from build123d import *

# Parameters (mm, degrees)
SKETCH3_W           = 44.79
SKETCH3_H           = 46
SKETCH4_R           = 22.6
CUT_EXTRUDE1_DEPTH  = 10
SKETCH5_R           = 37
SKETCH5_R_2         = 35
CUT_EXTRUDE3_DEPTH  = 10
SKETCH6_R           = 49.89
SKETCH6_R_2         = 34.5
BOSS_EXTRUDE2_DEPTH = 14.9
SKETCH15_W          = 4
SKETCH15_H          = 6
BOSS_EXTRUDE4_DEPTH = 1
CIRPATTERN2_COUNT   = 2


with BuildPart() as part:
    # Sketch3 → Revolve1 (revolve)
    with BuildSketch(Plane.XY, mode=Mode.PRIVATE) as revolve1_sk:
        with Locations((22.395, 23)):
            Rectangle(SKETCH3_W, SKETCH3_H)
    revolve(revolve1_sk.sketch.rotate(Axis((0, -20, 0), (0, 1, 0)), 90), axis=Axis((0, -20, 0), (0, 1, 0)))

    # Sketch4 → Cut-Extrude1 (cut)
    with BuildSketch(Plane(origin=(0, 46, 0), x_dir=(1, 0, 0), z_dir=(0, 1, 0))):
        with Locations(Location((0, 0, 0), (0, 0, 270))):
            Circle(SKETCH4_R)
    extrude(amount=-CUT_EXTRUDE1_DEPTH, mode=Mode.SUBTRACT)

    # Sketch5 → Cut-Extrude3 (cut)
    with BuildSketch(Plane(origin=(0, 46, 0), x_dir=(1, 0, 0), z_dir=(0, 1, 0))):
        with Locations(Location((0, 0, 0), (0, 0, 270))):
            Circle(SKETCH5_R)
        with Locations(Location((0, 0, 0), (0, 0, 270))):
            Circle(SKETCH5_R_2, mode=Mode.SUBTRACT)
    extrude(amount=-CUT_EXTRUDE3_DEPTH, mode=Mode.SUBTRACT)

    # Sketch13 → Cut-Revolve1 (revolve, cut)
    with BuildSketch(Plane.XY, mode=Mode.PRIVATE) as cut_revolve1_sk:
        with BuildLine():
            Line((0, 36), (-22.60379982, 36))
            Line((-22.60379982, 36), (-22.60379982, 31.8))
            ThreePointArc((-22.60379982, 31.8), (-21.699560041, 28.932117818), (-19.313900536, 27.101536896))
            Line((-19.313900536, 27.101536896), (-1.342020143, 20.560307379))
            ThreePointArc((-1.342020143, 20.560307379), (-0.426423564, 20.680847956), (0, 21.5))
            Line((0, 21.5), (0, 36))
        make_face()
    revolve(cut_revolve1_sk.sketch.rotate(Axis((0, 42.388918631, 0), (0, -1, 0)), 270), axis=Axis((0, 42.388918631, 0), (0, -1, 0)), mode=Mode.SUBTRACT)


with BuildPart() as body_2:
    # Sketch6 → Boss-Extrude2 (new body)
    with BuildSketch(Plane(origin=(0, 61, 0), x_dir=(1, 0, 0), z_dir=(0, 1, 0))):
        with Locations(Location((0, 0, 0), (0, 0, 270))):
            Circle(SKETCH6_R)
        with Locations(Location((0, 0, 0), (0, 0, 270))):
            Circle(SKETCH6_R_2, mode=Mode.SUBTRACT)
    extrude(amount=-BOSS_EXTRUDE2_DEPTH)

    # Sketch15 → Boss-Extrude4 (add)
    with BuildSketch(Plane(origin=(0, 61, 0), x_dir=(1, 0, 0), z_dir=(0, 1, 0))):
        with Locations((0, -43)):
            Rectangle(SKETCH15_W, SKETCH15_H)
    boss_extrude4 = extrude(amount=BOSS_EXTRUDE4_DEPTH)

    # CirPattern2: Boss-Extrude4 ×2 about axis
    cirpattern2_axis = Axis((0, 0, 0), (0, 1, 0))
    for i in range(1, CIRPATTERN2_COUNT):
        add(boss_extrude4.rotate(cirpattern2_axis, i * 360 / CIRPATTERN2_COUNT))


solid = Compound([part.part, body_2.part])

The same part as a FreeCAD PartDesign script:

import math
import FreeCAD as App
import Part
import Sketcher
Q = App.Units.Quantity


def add_polygon(sketch, points):
    """Adds a closed chain of lines whose ends are joined by coincident constraints."""
    first, n = sketch.GeometryCount, len(points)
    for a, b in zip(points, points[1:] + points[:1]):
        sketch.addGeometry(Part.LineSegment(App.Vector(*a, 0), App.Vector(*b, 0)), False)
    for i in range(n):
        sketch.addConstraint(Sketcher.Constraint("Coincident", first + i, 2, first + (i + 1) % n, 1))

doc = App.newDocument("Part")
body = doc.addObject("PartDesign::Body", "Body")

sketch1 = body.newObject("Sketcher::SketchObject", "Sketch")
sketch1.AttachmentSupport = (doc.getObject("XY_Plane"), [""])
sketch1.MapMode = "FlatFace"
add_polygon(sketch1, [(0, 46), (0, 0), (44.79, 0), (44.79, 46)])
sketch1.addConstraint(Sketcher.Constraint("Vertical", 0))
sketch1.addConstraint(Sketcher.Constraint("Horizontal", 1))
sketch1.addConstraint(Sketcher.Constraint("Vertical", 2))
sketch1.addConstraint(Sketcher.Constraint("Horizontal", 3))
sketch1.addConstraint(Sketcher.Constraint("Coincident", 0, 2, -1, 1))
sketch1.addConstraint(Sketcher.Constraint("DistanceY", 0, 2, 0, 1, Q("46 mm")))
sketch1.addConstraint(Sketcher.Constraint("DistanceX", 1, 1, 1, 2, Q("44.79 mm")))
revolution = body.newObject("PartDesign::Revolution", "Revolution")
revolution.Profile = sketch1
revolution.ReferenceAxis = (sketch1, ["V_Axis"])
revolution.Angle = 360

sketch2 = body.newObject("Sketcher::SketchObject", "Sketch001")
sketch2.AttachmentSupport = (doc.getObject("XZ_Plane"), [""])
sketch2.MapMode = "FlatFace"
sketch2.AttachmentOffset = App.Placement(App.Vector(0, 0, -46), App.Rotation())
sketch2.addGeometry(Part.Circle(App.Vector(0, 0, 0), App.Vector(0, 0, 1), 22.6), False)
sketch2.addConstraint(Sketcher.Constraint("Coincident", 0, 3, -1, 1))
sketch2.addConstraint(Sketcher.Constraint("Diameter", 0, Q("45.2 mm")))
pocket1 = body.newObject("PartDesign::Pocket", "Pocket")
pocket1.Profile = sketch2
pocket1.Length = 10
pocket1.Reversed = True

sketch3 = body.newObject("Sketcher::SketchObject", "Sketch002")
sketch3.AttachmentSupport = (doc.getObject("XZ_Plane"), [""])
sketch3.MapMode = "FlatFace"
sketch3.AttachmentOffset = App.Placement(App.Vector(0, 0, -46), App.Rotation())
sketch3.addGeometry(Part.Circle(App.Vector(0, 0, 0), App.Vector(0, 0, 1), 37), False)
sketch3.addGeometry(Part.Circle(App.Vector(0, 0, 0), App.Vector(0, 0, 1), 35), False)
sketch3.addConstraint(Sketcher.Constraint("Coincident", 0, 3, -1, 1))
sketch3.addConstraint(Sketcher.Constraint("Coincident", 1, 3, -1, 1))
sketch3.addConstraint(Sketcher.Constraint("Diameter", 0, Q("74 mm")))
sketch3.addConstraint(Sketcher.Constraint("Diameter", 1, Q("70 mm")))
pocket2 = body.newObject("PartDesign::Pocket", "Pocket001")
pocket2.Profile = sketch3
pocket2.Length = 10
pocket2.Reversed = True

sketch4 = body.newObject("Sketcher::SketchObject", "Sketch003")
sketch4.AttachmentSupport = (doc.getObject("XY_Plane"), [""])
sketch4.MapMode = "FlatFace"
sketch4.addGeometry(Part.LineSegment(App.Vector(0, 36, 0), App.Vector(-22.6038, 36, 0)), False)
sketch4.addGeometry(Part.LineSegment(App.Vector(-22.6038, 36, 0), App.Vector(-22.6038, 31.8, 0)), False)
sketch4.addGeometry(Part.ArcOfCircle(Part.Circle(App.Vector(-17.6038, 31.8, 0), App.Vector(0, 0, 1), 5), math.radians(-180), math.radians(-110)), False)
sketch4.addGeometry(Part.LineSegment(App.Vector(-19.313901, 27.101537, 0), App.Vector(-1.34202, 20.560307, 0)), False)
sketch4.addGeometry(Part.ArcOfCircle(Part.Circle(App.Vector(-1, 21.5, 0), App.Vector(0, 0, 1), 1), math.radians(-110), math.radians(0)), False)
sketch4.addGeometry(Part.LineSegment(App.Vector(0, 21.5, 0), App.Vector(0, 36, 0)), False)
sketch4.addConstraint(Sketcher.Constraint("Coincident", 0, 2, 1, 1))
sketch4.addConstraint(Sketcher.Constraint("Tangent", 1, 2, 2, 1))
sketch4.addConstraint(Sketcher.Constraint("Tangent", 2, 2, 3, 1))
sketch4.addConstraint(Sketcher.Constraint("Tangent", 3, 2, 4, 1))
sketch4.addConstraint(Sketcher.Constraint("Tangent", 4, 2, 5, 1))
sketch4.addConstraint(Sketcher.Constraint("Coincident", 5, 2, 0, 1))
sketch4.addConstraint(Sketcher.Constraint("Horizontal", 0))
sketch4.addConstraint(Sketcher.Constraint("Vertical", 1))
sketch4.addConstraint(Sketcher.Constraint("Vertical", 5))
sketch4.addConstraint(Sketcher.Constraint("PointOnObject", 4, 2, -2))
sketch4.addConstraint(Sketcher.Constraint("Radius", 2, Q("5 mm")))
sketch4.addConstraint(Sketcher.Constraint("Radius", 4, Q("1 mm")))
sketch4.addConstraint(Sketcher.Constraint("Angle", 3, Q("-20 deg")))
sketch4.addConstraint(Sketcher.Constraint("DistanceY", 1, 2, 1, 1, Q("4.2 mm")))
sketch4.addConstraint(Sketcher.Constraint("DistanceY", 5, 1, 5, 2, Q("14.5 mm")))
sketch4.addConstraint(Sketcher.Constraint("DistanceY", -1, 1, 0, 2, Q("36 mm")))
groove = body.newObject("PartDesign::Groove", "Groove")
groove.Profile = sketch4
groove.ReferenceAxis = (sketch4, ["V_Axis"])
groove.Angle = 360
body2 = doc.addObject("PartDesign::Body", "Body001")

sketch5 = body2.newObject("Sketcher::SketchObject", "Sketch004")
sketch5.AttachmentSupport = (doc.getObject("XZ_Plane001"), [""])
sketch5.MapMode = "FlatFace"
sketch5.AttachmentOffset = App.Placement(App.Vector(0, 0, -61), App.Rotation())
sketch5.addGeometry(Part.Circle(App.Vector(0, 0, 0), App.Vector(0, 0, 1), 49.89), False)
sketch5.addGeometry(Part.Circle(App.Vector(0, 0, 0), App.Vector(0, 0, 1), 34.5), False)
sketch5.addConstraint(Sketcher.Constraint("Coincident", 0, 3, -1, 1))
sketch5.addConstraint(Sketcher.Constraint("Coincident", 1, 3, -1, 1))
sketch5.addConstraint(Sketcher.Constraint("Diameter", 1, Q("69 mm")))
sketch5.addConstraint(Sketcher.Constraint("Diameter", 0, Q("99.78 mm")))
pad1 = body2.newObject("PartDesign::Pad", "Pad")
pad1.Profile = sketch5
pad1.Length = 14.9

sketch6 = body2.newObject("Sketcher::SketchObject", "Sketch005")
sketch6.AttachmentSupport = (doc.getObject("XZ_Plane001"), [""])
sketch6.MapMode = "FlatFace"
sketch6.AttachmentOffset = App.Placement(App.Vector(0, 0, -61), App.Rotation())
add_polygon(sketch6, [(-2, 40), (-2, 46), (2, 46), (2, 40)])
sketch6.addConstraint(Sketcher.Constraint("Vertical", 0))
sketch6.addConstraint(Sketcher.Constraint("Horizontal", 1))
sketch6.addConstraint(Sketcher.Constraint("Vertical", 2))
sketch6.addConstraint(Sketcher.Constraint("Horizontal", 3))
sketch6.addConstraint(Sketcher.Constraint("DistanceX", 1, 1, 1, 2, Q("4 mm")))
sketch6.addConstraint(Sketcher.Constraint("DistanceY", 0, 1, 0, 2, Q("6 mm")))
sketch6.addConstraint(Sketcher.Constraint("DistanceX", 0, 2, -1, 1, Q("2 mm")))
sketch6.addConstraint(Sketcher.Constraint("DistanceY", -1, 1, 0, 2, Q("46 mm")))
pad2 = body2.newObject("PartDesign::Pad", "Pad001")
pad2.Profile = sketch6
pad2.Length = 1
pad2.Reversed = True
doc.recompute()

polarpattern = body2.newObject("PartDesign::PolarPattern", "PolarPattern")
polarpattern.Originals = [pad2]
polarpattern.Axis = (doc.getObject("Y_Axis001"), [""])
polarpattern.Angle = 360
polarpattern.Occurrences = 2
body2.Tip = polarpattern

doc.recompute()
